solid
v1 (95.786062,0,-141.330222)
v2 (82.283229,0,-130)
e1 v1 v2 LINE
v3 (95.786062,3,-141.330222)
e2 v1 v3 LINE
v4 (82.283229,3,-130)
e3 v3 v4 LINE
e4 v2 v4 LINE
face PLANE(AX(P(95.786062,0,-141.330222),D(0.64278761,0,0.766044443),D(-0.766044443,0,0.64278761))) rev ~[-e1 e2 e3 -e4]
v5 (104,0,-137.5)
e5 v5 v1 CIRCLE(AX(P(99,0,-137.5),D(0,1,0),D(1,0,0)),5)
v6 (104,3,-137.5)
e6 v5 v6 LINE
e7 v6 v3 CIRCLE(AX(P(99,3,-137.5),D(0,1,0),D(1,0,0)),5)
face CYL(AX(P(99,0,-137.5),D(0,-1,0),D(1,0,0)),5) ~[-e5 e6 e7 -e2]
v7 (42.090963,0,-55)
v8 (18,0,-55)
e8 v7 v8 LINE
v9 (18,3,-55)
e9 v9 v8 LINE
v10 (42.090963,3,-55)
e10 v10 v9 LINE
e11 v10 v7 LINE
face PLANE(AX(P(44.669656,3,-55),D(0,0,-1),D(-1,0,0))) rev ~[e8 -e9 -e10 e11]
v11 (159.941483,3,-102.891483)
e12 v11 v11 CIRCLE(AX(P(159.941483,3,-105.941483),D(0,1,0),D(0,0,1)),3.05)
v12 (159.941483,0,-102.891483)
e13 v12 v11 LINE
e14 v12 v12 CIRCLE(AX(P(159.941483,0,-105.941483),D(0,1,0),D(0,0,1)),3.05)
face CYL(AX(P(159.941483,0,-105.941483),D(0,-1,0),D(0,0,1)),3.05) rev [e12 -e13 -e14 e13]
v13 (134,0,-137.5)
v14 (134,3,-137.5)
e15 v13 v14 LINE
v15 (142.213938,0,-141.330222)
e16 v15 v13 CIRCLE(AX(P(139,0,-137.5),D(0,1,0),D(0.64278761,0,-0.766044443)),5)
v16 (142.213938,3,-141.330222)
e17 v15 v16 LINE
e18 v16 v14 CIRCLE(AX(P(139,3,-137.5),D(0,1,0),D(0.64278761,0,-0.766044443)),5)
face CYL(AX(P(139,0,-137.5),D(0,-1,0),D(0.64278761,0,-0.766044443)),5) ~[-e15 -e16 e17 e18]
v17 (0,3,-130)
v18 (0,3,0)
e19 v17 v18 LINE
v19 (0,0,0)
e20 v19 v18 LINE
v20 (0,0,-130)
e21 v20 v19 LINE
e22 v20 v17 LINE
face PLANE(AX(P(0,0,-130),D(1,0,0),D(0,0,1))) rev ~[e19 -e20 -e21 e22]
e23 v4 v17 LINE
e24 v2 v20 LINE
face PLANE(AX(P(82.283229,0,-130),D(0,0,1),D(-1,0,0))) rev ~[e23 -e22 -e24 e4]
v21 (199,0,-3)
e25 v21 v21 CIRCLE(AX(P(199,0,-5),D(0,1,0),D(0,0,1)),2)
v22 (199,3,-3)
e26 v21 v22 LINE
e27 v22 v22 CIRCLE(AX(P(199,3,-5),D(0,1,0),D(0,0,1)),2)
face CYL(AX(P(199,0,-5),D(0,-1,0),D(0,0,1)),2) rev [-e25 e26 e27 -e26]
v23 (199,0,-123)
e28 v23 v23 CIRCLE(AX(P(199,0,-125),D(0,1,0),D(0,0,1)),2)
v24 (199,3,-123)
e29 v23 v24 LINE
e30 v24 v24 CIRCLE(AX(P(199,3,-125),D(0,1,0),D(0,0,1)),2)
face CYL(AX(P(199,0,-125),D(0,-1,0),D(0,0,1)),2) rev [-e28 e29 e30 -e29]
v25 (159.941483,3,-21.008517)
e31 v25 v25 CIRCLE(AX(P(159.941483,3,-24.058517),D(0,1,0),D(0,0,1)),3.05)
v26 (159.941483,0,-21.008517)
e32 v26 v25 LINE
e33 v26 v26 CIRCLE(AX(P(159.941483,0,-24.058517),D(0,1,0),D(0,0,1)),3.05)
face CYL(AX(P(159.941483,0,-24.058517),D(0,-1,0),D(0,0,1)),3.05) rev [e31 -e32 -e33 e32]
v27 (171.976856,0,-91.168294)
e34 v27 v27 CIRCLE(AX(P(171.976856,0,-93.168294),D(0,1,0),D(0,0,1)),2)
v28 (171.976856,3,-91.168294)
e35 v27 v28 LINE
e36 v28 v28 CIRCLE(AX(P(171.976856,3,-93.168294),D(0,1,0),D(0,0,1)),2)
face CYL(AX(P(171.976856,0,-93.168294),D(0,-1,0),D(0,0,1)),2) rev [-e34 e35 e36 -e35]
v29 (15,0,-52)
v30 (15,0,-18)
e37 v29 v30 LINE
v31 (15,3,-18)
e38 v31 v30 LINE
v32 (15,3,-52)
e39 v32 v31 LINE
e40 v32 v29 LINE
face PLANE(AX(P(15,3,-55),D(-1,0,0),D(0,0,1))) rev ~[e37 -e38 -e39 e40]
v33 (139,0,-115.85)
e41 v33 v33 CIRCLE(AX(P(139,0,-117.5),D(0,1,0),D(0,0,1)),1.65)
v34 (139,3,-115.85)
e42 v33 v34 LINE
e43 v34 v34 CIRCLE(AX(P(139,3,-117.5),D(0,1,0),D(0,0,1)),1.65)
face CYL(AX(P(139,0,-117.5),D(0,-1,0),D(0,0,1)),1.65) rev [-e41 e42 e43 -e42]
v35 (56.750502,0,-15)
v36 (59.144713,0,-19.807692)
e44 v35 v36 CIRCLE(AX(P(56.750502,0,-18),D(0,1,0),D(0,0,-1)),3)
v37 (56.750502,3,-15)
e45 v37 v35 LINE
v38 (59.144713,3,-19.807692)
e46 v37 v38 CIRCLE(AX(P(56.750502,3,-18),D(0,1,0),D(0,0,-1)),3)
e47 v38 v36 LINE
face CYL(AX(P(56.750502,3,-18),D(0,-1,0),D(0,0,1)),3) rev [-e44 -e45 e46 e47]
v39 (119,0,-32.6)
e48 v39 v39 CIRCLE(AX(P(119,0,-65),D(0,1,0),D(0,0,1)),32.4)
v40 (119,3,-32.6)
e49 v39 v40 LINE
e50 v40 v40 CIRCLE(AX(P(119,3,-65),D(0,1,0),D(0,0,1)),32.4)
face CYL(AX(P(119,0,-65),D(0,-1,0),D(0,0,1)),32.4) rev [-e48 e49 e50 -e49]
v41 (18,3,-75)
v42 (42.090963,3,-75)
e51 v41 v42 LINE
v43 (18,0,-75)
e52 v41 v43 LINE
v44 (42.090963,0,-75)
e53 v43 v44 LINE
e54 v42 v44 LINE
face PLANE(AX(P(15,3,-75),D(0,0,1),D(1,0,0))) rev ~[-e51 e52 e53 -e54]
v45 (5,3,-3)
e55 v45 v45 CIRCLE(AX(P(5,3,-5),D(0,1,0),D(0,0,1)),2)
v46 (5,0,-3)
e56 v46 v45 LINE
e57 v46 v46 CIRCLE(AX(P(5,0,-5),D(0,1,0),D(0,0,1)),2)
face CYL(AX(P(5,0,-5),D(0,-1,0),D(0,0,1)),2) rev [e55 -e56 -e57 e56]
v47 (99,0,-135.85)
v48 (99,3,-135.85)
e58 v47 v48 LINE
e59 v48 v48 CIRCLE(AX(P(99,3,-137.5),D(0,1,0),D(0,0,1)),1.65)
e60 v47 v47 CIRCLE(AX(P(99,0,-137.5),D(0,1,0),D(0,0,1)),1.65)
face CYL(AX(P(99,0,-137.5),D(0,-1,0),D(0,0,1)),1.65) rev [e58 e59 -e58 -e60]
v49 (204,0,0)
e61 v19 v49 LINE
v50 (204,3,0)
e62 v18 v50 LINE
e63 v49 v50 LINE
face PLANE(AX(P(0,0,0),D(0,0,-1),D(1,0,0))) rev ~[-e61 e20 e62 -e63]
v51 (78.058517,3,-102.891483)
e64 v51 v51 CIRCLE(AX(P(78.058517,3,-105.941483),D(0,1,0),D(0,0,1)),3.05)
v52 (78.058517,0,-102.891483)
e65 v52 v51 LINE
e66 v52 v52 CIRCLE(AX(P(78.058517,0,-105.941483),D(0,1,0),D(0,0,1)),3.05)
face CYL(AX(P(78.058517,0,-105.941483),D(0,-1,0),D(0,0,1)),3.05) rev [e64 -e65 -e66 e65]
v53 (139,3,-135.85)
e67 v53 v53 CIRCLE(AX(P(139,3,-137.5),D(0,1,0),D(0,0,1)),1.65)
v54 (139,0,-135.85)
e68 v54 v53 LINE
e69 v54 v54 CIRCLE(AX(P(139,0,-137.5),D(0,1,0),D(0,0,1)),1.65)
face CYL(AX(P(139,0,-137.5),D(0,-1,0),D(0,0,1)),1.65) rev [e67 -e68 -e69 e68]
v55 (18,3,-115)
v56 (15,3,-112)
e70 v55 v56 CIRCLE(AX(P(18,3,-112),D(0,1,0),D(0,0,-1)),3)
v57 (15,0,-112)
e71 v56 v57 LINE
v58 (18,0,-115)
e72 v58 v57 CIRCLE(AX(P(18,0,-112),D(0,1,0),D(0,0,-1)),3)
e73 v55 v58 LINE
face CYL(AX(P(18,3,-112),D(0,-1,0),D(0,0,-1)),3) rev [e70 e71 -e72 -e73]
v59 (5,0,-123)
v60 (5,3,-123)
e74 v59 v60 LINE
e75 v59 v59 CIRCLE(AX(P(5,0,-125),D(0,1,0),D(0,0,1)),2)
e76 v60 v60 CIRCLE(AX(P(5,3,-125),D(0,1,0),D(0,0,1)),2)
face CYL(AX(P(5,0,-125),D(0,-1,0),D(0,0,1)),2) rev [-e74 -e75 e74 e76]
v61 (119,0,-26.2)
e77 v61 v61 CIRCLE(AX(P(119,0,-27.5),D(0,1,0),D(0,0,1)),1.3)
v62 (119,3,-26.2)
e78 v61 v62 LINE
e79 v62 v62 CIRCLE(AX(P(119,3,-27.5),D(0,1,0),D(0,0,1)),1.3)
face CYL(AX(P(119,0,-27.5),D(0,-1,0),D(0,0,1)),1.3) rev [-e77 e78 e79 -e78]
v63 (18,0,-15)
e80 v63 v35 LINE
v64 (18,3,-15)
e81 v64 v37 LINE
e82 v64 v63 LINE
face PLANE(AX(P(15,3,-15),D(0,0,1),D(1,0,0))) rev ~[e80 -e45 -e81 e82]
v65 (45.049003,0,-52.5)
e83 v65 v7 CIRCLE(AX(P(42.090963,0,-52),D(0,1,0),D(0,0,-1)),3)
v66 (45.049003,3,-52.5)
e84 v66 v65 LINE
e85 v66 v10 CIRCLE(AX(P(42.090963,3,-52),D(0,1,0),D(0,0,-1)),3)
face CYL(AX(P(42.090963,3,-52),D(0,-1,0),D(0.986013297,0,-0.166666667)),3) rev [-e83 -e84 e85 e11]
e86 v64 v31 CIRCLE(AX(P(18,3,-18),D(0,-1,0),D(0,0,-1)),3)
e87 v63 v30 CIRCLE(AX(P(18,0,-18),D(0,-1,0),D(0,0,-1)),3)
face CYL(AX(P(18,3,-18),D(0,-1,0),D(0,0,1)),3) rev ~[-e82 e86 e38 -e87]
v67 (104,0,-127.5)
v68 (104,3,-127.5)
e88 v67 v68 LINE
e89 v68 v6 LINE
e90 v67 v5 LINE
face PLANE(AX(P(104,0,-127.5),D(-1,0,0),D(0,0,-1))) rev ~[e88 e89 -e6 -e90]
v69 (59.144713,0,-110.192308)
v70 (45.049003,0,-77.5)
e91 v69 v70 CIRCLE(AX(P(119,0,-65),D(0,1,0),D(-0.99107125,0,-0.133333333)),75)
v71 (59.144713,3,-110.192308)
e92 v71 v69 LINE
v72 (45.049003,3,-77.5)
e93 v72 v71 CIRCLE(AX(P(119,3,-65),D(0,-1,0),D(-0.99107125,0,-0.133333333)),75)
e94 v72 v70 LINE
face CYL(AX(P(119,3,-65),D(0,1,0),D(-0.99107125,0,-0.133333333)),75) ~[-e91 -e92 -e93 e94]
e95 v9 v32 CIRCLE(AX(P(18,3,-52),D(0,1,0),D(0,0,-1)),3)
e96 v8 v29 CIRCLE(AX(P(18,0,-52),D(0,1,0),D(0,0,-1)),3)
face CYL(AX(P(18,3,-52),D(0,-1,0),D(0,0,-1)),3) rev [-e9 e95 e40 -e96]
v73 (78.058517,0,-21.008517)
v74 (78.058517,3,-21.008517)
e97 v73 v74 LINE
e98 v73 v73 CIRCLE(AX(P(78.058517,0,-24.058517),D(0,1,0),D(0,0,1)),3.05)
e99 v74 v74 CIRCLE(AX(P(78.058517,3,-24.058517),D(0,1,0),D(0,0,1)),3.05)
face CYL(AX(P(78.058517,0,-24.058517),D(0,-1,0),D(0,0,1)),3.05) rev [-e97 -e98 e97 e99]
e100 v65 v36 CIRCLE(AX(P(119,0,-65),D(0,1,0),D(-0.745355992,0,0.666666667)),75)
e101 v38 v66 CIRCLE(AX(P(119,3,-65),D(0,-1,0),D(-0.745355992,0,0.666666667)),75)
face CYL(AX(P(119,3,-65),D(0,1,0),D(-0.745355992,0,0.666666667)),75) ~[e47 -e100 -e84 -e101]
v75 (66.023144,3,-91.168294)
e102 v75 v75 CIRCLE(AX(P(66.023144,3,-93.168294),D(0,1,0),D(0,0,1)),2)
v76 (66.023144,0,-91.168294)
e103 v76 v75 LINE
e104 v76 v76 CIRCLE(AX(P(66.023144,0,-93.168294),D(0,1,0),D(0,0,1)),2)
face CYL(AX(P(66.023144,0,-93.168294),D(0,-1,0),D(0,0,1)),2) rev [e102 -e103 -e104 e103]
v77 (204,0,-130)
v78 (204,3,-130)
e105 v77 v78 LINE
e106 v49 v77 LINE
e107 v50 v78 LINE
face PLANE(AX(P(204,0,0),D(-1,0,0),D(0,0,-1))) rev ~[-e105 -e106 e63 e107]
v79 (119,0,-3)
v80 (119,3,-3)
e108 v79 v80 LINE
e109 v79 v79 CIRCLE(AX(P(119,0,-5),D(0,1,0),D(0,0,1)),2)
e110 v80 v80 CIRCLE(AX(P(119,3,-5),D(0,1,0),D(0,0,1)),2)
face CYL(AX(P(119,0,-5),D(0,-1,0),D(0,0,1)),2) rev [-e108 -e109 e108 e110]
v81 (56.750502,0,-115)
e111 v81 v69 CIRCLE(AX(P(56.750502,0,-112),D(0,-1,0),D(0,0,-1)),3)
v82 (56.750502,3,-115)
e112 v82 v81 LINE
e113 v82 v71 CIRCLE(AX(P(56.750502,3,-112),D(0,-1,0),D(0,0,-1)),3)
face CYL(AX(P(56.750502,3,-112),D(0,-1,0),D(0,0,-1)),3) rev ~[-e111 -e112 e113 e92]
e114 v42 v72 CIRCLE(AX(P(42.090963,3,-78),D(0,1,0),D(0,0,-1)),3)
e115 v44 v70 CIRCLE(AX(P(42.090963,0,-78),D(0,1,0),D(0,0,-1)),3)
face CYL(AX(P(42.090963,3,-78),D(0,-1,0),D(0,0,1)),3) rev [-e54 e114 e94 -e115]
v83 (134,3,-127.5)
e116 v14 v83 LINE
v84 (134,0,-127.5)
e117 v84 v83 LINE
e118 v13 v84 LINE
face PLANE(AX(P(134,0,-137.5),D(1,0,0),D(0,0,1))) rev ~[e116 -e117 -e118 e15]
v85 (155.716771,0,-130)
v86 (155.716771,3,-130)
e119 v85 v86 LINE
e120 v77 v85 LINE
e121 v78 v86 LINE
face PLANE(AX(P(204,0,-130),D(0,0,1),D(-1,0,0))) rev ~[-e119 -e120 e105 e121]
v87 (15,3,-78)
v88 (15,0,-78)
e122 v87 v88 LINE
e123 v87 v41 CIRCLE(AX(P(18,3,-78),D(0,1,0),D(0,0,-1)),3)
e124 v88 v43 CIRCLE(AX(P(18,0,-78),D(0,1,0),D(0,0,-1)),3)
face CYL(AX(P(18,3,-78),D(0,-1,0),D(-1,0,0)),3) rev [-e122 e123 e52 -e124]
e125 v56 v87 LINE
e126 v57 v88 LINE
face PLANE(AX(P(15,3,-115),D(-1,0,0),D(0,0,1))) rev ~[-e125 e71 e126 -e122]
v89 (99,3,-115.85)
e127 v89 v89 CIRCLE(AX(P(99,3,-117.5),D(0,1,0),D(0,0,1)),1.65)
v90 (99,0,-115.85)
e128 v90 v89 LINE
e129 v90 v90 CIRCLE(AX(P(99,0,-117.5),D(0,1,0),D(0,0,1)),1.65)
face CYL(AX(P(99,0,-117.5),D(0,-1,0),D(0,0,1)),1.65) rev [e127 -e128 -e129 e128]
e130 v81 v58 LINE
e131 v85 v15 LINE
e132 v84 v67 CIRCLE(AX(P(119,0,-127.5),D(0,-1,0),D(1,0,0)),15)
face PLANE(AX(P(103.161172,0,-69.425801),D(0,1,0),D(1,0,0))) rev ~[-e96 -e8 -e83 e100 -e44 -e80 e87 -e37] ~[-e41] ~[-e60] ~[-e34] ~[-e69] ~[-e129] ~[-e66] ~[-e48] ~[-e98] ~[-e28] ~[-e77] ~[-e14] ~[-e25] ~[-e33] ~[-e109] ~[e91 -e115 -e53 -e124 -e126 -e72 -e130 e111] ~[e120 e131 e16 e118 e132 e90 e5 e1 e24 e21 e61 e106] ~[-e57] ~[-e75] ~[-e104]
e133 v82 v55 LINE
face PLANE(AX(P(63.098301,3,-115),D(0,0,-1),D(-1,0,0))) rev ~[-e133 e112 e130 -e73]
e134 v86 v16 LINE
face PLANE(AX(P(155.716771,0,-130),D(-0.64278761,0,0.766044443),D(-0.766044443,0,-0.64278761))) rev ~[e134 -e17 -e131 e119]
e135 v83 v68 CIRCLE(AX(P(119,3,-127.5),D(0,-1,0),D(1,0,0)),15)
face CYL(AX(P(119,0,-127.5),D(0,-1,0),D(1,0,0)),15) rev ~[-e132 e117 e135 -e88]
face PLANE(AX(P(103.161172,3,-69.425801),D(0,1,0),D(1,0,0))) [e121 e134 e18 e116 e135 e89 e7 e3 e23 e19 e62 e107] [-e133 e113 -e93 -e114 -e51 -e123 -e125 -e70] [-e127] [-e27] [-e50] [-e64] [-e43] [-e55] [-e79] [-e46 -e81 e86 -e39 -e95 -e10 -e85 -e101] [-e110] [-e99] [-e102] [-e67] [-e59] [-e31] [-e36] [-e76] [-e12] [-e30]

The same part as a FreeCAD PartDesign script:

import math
import FreeCAD as App
import Part
import Sketcher
Q = App.Units.Quantity


def edges_at(feature, points):
    """Names of the edges that pass closest to the given points."""
    edges = feature.Shape.Edges
    near = lambda p: min(range(len(edges)), key=lambda i: edges[i].distToShape(Part.Vertex(*p))[0])
    return sorted({f"Edge{near(p) + 1}" for p in points})

doc = App.newDocument("Part")
params = doc.addObject("Spreadsheet::Sheet", "Params")
for row, (alias, value) in enumerate([
    ("sketch1_diameter", "4 mm"),
    ("sketch1_radius", "5 mm"),
    ("sketch1_radius2", "15 mm"),
    ("sketch1_diameter2", "6.1 mm"),
    ("sketch1_diameter3", "2.6 mm"),
    ("pad1_length", "3 mm"),
    ("sketch2_radius", "75 mm"),
    ("sketch2_height", "40 mm"),
    ("fillet_radius", "3 mm"),
], start=1):
    params.set(f"A{row}", alias)
    params.set(f"B{row}", "=" + value)
    params.setAlias(f"B{row}", alias)

body = doc.addObject("PartDesign::Body", "Body")

# Sketch on XZ plane
sketch1 = doc.addObject("Sketcher::SketchObject", "Sketch")
body.addObject(sketch1)
sketch1.AttachmentSupport = (doc.XZ_Plane, [""])
sketch1.MapMode = "FlatFace"
sketch1.addGeometry([
    Part.LineSegment(App.Vector(0, -130, 0), App.Vector(0, 0, 0)),  # 0
    Part.LineSegment(App.Vector(0, 0, 0), App.Vector(204, 0, 0)),  # 1
    Part.LineSegment(App.Vector(204, 0, 0), App.Vector(204, -130, 0)),  # 2
    Part.LineSegment(App.Vector(204, -130, 0), App.Vector(155.7, -130, 0)),  # 3
    Part.LineSegment(App.Vector(155.7, -130, 0), App.Vector(142.2, -141.3, 0)),  # 4
    Part.ArcOfCircle(Part.Circle(App.Vector(139, -137.5, 0), App.Vector(0, 0, 1), 5), math.radians(180), math.radians(310)),  # 5
    Part.LineSegment(App.Vector(134, -137.5, 0), App.Vector(134, -127.5, 0)),  # 6
    Part.ArcOfCircle(Part.Circle(App.Vector(119, -127.5, 0), App.Vector(0, 0, 1), 15), math.radians(0), math.radians(180)),  # 7
    Part.LineSegment(App.Vector(104, -127.5, 0), App.Vector(104, -137.5, 0)),  # 8
    Part.ArcOfCircle(Part.Circle(App.Vector(99, -137.5, 0), App.Vector(0, 0, 1), 5), math.radians(-130), math.radians(0)),  # 9
    Part.LineSegment(App.Vector(95.8, -141.3, 0), App.Vector(82.3, -130, 0)),  # 10
    Part.LineSegment(App.Vector(82.3, -130, 0), App.Vector(0, -130, 0)),  # 11
    Part.Circle(App.Vector(5, -5, 0), App.Vector(0, 0, 1), 2),  # 12
    Part.Circle(App.Vector(78.1, -24.1, 0), App.Vector(0, 0, 1), 3),  # 13
    Part.Circle(App.Vector(119, -5, 0), App.Vector(0, 0, 1), 2),  # 14
    Part.Circle(App.Vector(119, -27.5, 0), App.Vector(0, 0, 1), 1.3),  # 15
    Part.Circle(App.Vector(199, -5, 0), App.Vector(0, 0, 1), 2),  # 16
    Part.Circle(App.Vector(159.9, -24.1, 0), App.Vector(0, 0, 1), 3),  # 17
    Part.Circle(App.Vector(119, -65, 0), App.Vector(0, 0, 1), 32.4),  # 18
    Part.Circle(App.Vector(66, -93.2, 0), App.Vector(0, 0, 1), 2),  # 19
    Part.Circle(App.Vector(5, -125, 0), App.Vector(0, 0, 1), 2),  # 20
    Part.Circle(App.Vector(78.1, -105.9, 0), App.Vector(0, 0, 1), 3),  # 21
    Part.Circle(App.Vector(99, -117.5, 0), App.Vector(0, 0, 1), 1.6),  # 22
    Part.Circle(App.Vector(99, -137.5, 0), App.Vector(0, 0, 1), 1.6),  # 23
    Part.Circle(App.Vector(172, -93.2, 0), App.Vector(0, 0, 1), 2),  # 24
    Part.Circle(App.Vector(139, -117.5, 0), App.Vector(0, 0, 1), 1.6),  # 25
    Part.Circle(App.Vector(139, -137.5, 0), App.Vector(0, 0, 1), 1.6),  # 26
    Part.Circle(App.Vector(159.9, -105.9, 0), App.Vector(0, 0, 1), 3),  # 27
    Part.Circle(App.Vector(199, -125, 0), App.Vector(0, 0, 1), 2),  # 28
], False)
sketch1.addConstraint([
    Sketcher.Constraint("Coincident", 0, 2, 1, 1),
    Sketcher.Constraint("Coincident", 1, 2, 2, 1),
    Sketcher.Constraint("Coincident", 2, 2, 3, 1),
    Sketcher.Constraint("Coincident", 3, 2, 4, 1),
    Sketcher.Constraint("Tangent", 4, 2, 5, 2),
    Sketcher.Constraint("Tangent", 5, 1, 6, 1),
    Sketcher.Constraint("Tangent", 6, 2, 7, 1),
    Sketcher.Constraint("Tangent", 7, 2, 8, 1),
    Sketcher.Constraint("Tangent", 8, 2, 9, 2),
    Sketcher.Constraint("Tangent", 9, 1, 10, 1),
    Sketcher.Constraint("Coincident", 10, 2, 11, 1),
    Sketcher.Constraint("Coincident", 11, 2, 0, 1),
    Sketcher.Constraint("Vertical", 0),
    Sketcher.Constraint("Horizontal", 1),
    Sketcher.Constraint("Vertical", 2),
    Sketcher.Constraint("Horizontal", 3),
    Sketcher.Constraint("Vertical", 6),
    Sketcher.Constraint("Vertical", 8),
    Sketcher.Constraint("Horizontal", 11),
    Sketcher.Constraint("Coincident", 0, 2, -1, 1),
    Sketcher.Constraint("Coincident", 23, 3, 9, 3),
    Sketcher.Constraint("Coincident", 26, 3, 5, 3),
    Sketcher.Constraint("Equal", 5, 9),
    Sketcher.Constraint("Equal", 12, 14),
    Sketcher.Constraint("Equal", 14, 16),
    Sketcher.Constraint("Equal", 13, 17),
    Sketcher.Constraint("Equal", 16, 19),
    Sketcher.Constraint("Equal", 19, 20),
    Sketcher.Constraint("Equal", 17, 21),
    Sketcher.Constraint("Equal", 22, 23),
    Sketcher.Constraint("Equal", 20, 24),
    Sketcher.Constraint("Equal", 23, 25),
    Sketcher.Constraint("Equal", 25, 26),
    Sketcher.Constraint("Equal", 21, 27),
    Sketcher.Constraint("Equal", 24, 28),
    Sketcher.Constraint("Horizontal", 5, 3, 9, 3),
    Sketcher.Constraint("Horizontal", 12, 3, 14, 3),
    Sketcher.Constraint("Horizontal", 14, 3, 16, 3),
    Sketcher.Constraint("Horizontal", 13, 3, 17, 3),
    Sketcher.Constraint("Horizontal", 19, 3, 24, 3),
    Sketcher.Constraint("Horizontal", 22, 3, 25, 3),
    Sketcher.Constraint("Horizontal", 21, 3, 27, 3),
    Sketcher.Constraint("Horizontal", 20, 3, 28, 3),
    Sketcher.Constraint("Horizontal", 4, 2, 9, 1),
    Sketcher.Constraint("Horizontal", 3, 2, 10, 2),
    Sketcher.Constraint("Vertical", 7, 3, 14, 3),
    Sketcher.Constraint("Vertical", 14, 3, 15, 3),
    Sketcher.Constraint("Vertical", 15, 3, 18, 3),
    Sketcher.Constraint("Vertical", 12, 3, 20, 3),
    Sketcher.Constraint("Vertical", 13, 3, 21, 3),
    Sketcher.Constraint("Vertical", 9, 3, 22, 3),
    Sketcher.Constraint("Vertical", 5, 3, 25, 3),
    Sketcher.Constraint("Vertical", 17, 3, 27, 3),
    Sketcher.Constraint("Vertical", 16, 3, 28, 3),
    Sketcher.Constraint("Diameter", 12, 4.0),
    Sketcher.Constraint("Radius", 5, 5.0),
    Sketcher.Constraint("Radius", 7, 15.0),
    Sketcher.Constraint("Diameter", 13, 6.1),
    Sketcher.Constraint("Diameter", 15, 2.6),
    Sketcher.Constraint("Diameter", 18, 64.8),
    Sketcher.Constraint("Diameter", 22, 3.3),
    Sketcher.Constraint("DistanceX", 1, 1, 1, 2, 204.0),
    Sketcher.Constraint("DistanceY", 0, 1, 0, 2, 130.0),
    Sketcher.Constraint("DistanceY", 6, 1, 6, 2, 10.0),
    Sketcher.Constraint("Angle", 4, Q("-140 deg")),
    Sketcher.Constraint("DistanceX", -1, 1, 5, 3, 139.0),
    Sketcher.Constraint("DistanceX", -1, 1, 12, 3, 5.0),
    Sketcher.Constraint("DistanceY", 12, 3, -1, 1, 5.0),
    Sketcher.Constraint("DistanceX", -1, 1, 16, 3, 199.0),
    Sketcher.Constraint("DistanceY", 18, 3, -1, 1, 65.0),
    Sketcher.Constraint("DistanceY", 20, 3, -1, 1, 125.0),
    Sketcher.Constraint("DistanceY", 7, 3, 15, 3, 100.0),
    Sketcher.Constraint("DistanceY", 9, 3, 22, 3, 20.0),
    Sketcher.Constraint("DistanceY", 5, 3, -1, 1, 137.5),
    Sketcher.Constraint("DistanceY", 21, 3, 19, 3, 12.773189),
    Sketcher.Constraint("DistanceX", 3, 2, 27, 3, 4.224712),
    Sketcher.Constraint("DistanceX", -1, 1, 13, 3, 78.058517),
    Sketcher.Constraint("DistanceY", 13, 3, -1, 1, 24.058517),
    Sketcher.Constraint("DistanceX", -1, 1, 19, 3, 66.023144),
    Sketcher.Constraint("DistanceY", 19, 3, -1, 1, 93.168294),
    Sketcher.Constraint("DistanceX", -1, 1, 24, 3, 171.976856),
])
sketch1.setExpression("Constraints[54]", "Params.sketch1_diameter")
sketch1.setExpression("Constraints[55]", "Params.sketch1_radius")
sketch1.setExpression("Constraints[56]", "Params.sketch1_radius2")
sketch1.setExpression("Constraints[57]", "Params.sketch1_diameter2")
sketch1.setExpression("Constraints[58]", "Params.sketch1_diameter3")
pad1 = doc.addObject("PartDesign::Pad", "Pad")
body.addObject(pad1)
pad1.Profile = sketch1
pad1.setExpression("Length", "Params.pad1_length")
pad1.Reversed = True

# Sketch on XZ plane
sketch2 = doc.addObject("Sketcher::SketchObject", "Sketch001")
body.addObject(sketch2)
sketch2.AttachmentSupport = (doc.XZ_Plane, [""])
sketch2.MapMode = "FlatFace"
sketch2.AttachmentOffset = App.Placement(App.Vector(0, 0, -3), App.Rotation())
sketch2.addGeometry([
    Part.ArcOfCircle(Part.Circle(App.Vector(119, -65, 0), App.Vector(0, 0, 1), 75), math.radians(-172), math.radians(-138)),  # 0
    Part.LineSegment(App.Vector(63, -115, 0), App.Vector(15, -115, 0)),  # 1
    Part.LineSegment(App.Vector(15, -115, 0), App.Vector(15, -75, 0)),  # 2
    Part.LineSegment(App.Vector(15, -75, 0), App.Vector(45, -75, 0)),  # 3
    Part.LineSegment(App.Vector(15, -15, 0), App.Vector(63, -15, 0)),  # 4
    Part.ArcOfCircle(Part.Circle(App.Vector(119, -65, 0), App.Vector(0, 0, 1), 75), math.radians(138), math.radians(172)),  # 5
    Part.LineSegment(App.Vector(45, -55, 0), App.Vector(15, -55, 0)),  # 6
    Part.LineSegment(App.Vector(15, -55, 0), App.Vector(15, -15, 0)),  # 7
], False)
sketch2.addConstraint([
    Sketcher.Constraint("Coincident", 0, 2, 1, 1),
    Sketcher.Constraint("Coincident", 1, 2, 2, 1),
    Sketcher.Constraint("Coincident", 2, 2, 3, 1),
    Sketcher.Constraint("Coincident", 3, 2, 0, 1),
    Sketcher.Constraint("Coincident", 4, 2, 5, 1),
    Sketcher.Constraint("Coincident", 5, 2, 6, 1),
    Sketcher.Constraint("Coincident", 6, 2, 7, 1),
    Sketcher.Constraint("Coincident", 7, 2, 4, 1),
    Sketcher.Constraint("Horizontal", 1),
    Sketcher.Constraint("Vertical", 2),
    Sketcher.Constraint("Horizontal", 3),
    Sketcher.Constraint("Horizontal", 4),
    Sketcher.Constraint("Horizontal", 6),
    Sketcher.Constraint("Vertical", 7),
    Sketcher.Constraint("Coincident", 5, 3, 0, 3),
    Sketcher.Constraint("Equal", 0, 5),
    Sketcher.Constraint("Vertical", 0, 2, 4, 2),
    Sketcher.Constraint("Vertical", 3, 2, 5, 2),
    Sketcher.Constraint("Vertical", 2, 2, 6, 2),
    Sketcher.Constraint("Radius", 0, 75.0),
    Sketcher.Constraint("DistanceY", 2, 1, 2, 2, 40.0),
    Sketcher.Constraint("DistanceX", -1, 1, 0, 3, 119.0),
    Sketcher.Constraint("DistanceY", 0, 3, -1, 1, 65.0),
    Sketcher.Constraint("DistanceY", 0, 2, -1, 1, 115.0),
    Sketcher.Constraint("DistanceX", -1, 1, 1, 2, 15.0),
])
sketch2.setExpression("Constraints[19]", "Params.sketch2_radius")
sketch2.setExpression("Constraints[20]", "Params.sketch2_height")
pocket1 = doc.addObject("PartDesign::Pocket", "Pocket")
body.addObject(pocket1)
pocket1.Profile = sketch2
pocket1.Type = "ThroughAll"
pocket1.Reversed = True
doc.recompute()

fillet = doc.addObject("PartDesign::Fillet", "Fillet")
body.addObject(fillet)
fillet.Base = (pocket1, edges_at(pocket1, [
    (63.098, 1.5, -115),
    (44.67, 1.5, -75),
    (15, 1.5, -75),
    (15, 1.5, -115),
    (44.67, 1.5, -55),
    (63.098, 1.5, -15),
    (15, 1.5, -15),
    (15, 1.5, -55),
]))
fillet.setExpression("Radius", "Params.fillet_radius")

doc.recompute()
